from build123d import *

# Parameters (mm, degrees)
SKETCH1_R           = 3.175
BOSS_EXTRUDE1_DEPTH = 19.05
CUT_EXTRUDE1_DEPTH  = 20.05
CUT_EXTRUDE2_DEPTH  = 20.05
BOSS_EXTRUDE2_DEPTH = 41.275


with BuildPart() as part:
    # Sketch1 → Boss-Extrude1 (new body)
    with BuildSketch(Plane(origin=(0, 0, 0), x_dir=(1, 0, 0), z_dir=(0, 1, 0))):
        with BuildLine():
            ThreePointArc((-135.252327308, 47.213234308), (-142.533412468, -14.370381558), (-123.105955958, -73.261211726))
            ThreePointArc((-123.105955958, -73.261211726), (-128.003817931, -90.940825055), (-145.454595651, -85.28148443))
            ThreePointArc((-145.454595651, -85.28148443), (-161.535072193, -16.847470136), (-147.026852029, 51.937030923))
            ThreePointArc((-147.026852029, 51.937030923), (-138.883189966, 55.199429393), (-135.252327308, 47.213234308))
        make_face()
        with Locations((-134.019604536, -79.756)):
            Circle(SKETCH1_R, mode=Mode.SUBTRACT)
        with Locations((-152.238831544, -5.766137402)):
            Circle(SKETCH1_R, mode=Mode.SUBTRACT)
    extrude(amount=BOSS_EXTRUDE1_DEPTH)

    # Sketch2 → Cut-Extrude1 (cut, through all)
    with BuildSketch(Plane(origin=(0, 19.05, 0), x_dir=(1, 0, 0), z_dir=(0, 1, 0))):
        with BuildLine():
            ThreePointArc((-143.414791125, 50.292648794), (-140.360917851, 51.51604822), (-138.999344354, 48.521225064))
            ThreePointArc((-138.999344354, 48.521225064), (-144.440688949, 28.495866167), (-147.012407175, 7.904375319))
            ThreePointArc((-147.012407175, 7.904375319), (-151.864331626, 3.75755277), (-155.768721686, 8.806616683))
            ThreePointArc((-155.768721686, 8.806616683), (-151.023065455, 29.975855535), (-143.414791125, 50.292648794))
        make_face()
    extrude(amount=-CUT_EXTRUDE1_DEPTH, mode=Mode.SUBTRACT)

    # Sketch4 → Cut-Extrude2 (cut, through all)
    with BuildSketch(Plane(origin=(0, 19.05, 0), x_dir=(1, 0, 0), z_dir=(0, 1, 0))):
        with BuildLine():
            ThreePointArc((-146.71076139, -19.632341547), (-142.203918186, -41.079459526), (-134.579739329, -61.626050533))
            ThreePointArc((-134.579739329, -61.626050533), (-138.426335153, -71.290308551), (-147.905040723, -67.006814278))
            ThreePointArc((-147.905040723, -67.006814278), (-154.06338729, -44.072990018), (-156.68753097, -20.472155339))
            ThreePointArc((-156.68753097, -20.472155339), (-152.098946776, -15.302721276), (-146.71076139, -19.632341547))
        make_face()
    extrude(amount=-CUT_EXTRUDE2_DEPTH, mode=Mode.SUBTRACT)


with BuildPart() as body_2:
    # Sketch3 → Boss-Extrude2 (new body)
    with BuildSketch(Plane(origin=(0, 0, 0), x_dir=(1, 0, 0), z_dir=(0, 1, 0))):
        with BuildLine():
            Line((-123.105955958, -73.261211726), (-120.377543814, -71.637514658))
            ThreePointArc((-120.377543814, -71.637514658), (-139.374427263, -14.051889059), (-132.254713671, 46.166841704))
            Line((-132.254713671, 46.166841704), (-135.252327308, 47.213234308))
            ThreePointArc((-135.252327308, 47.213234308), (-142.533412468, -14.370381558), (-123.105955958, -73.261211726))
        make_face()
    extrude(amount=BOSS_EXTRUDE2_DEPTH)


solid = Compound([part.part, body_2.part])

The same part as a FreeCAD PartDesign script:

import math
import FreeCAD as App
import Part
import Sketcher

V = App.Vector
Q = App.Units.Quantity

doc = App.newDocument("Part")
body = doc.addObject("PartDesign::Body", "Body")

sketch1 = body.newObject("Sketcher::SketchObject", "Sketch")
sketch1.AttachmentSupport = (doc.getObject("XZ_Plane"), [""])
sketch1.MapMode = "FlatFace"
sketch1.addGeometry([
    Part.ArcOfCircle(Part.Circle(V(0, 0, 0), V(0, 0, 1), 143.256), math.radians(149.242828), math.radians(199.242828)),
    Part.ArcOfCircle(Part.Circle(V(-141.247555, -49.30602, 0), V(0, 0, 1), 6.35), math.radians(-155.522712), math.radians(19.242828)),
    Part.ArcOfCircle(Part.Circle(V(0, 14.996593, 0), V(0, 0, 1), 161.545676), math.radians(154.209774), math.radians(204.477288)),
    Part.ArcOfCircle(Part.Circle(V(-134.019605, 79.756, 0), V(0, 0, 1), 12.7), math.radians(-30.757172), math.radians(154.209774)),
    Part.Circle(V(-134.019605, 79.756, 0), V(0, 0, 1), 3.175),
    Part.Circle(V(-152.238832, 5.766137, 0), V(0, 0, 1), 3.175),
], False)
sketch1.addConstraint([
    Sketcher.Constraint("Tangent", 0, 2, 1, 2),
    Sketcher.Constraint("Tangent", 1, 1, 2, 2),
    Sketcher.Constraint("Tangent", 2, 1, 3, 2),
    Sketcher.Constraint("Tangent", 3, 1, 0, 1),
    Sketcher.Constraint("Coincident", 0, 3, -1, 1),
    Sketcher.Constraint("Coincident", 4, 3, 3, 3),
    Sketcher.Constraint("Equal", 4, 5),
    Sketcher.Constraint("PointOnObject", 2, 3, -2),
    Sketcher.Constraint("Radius", 3, Q("0.5 in")),
    Sketcher.Constraint("Diameter", 4, Q("0.25 in")),
    Sketcher.Constraint("Radius", 0, Q("5.64 in")),
    Sketcher.Constraint("Radius", 1, Q("0.25 in")),
    Sketcher.Constraint("DistanceY", -1, 1, 3, 3, Q("3.14 in")),
    Sketcher.Constraint("Radius", 2, Q("161.545676 mm")),
    Sketcher.Constraint("DistanceX", 5, 3, -1, 1, Q("152.238832 mm")),
    Sketcher.Constraint("DistanceY", 0, 2, 5, 3, Q("52.979372 mm")),
])
pad1 = body.newObject("PartDesign::Pad", "Pad")
pad1.Profile = sketch1
pad1.Length = Q("0.75 in")
pad1.Reversed = True

sketch2 = body.newObject("Sketcher::SketchObject", "Sketch001")
sketch2.AttachmentSupport = (doc.getObject("XZ_Plane"), [""])
sketch2.MapMode = "FlatFace"
sketch2.AttachmentOffset = App.Placement(V(0, 0, -0.75 * 25.4), App.Rotation())
sketch2.addGeometry([
    Part.ArcOfCircle(Part.Circle(V(-141.247555, -49.30602, 0), V(0, 0, 1), 2.38125), math.radians(-155.522712), math.radians(19.242828)),
    Part.ArcOfCircle(Part.Circle(V(0, 14.996593, 0), V(0, 0, 1), 157.576926), math.radians(-171.311772), math.radians(-155.522712)),
    Part.ArcOfCircle(Part.Circle(V(-151.41267, -8.140963, 0), V(0, 0, 1), 4.406618), math.radians(3.077643), math.radians(188.688228)),
    Part.ArcOfCircle(Part.Circle(V(0, 0, 0), V(0, 0, 1), 147.22475), math.radians(-176.922357), math.radians(-160.757172)),
], False)
sketch2.addConstraint([
    Sketcher.Constraint("Tangent", 0, 1, 1, 2),
    Sketcher.Constraint("Tangent", 1, 1, 2, 2),
    Sketcher.Constraint("Tangent", 2, 1, 3, 1),
    Sketcher.Constraint("Tangent", 3, 2, 0, 2),
    Sketcher.Constraint("Coincident", 3, 3, -1, 1),
    Sketcher.Constraint("PointOnObject", 1, 3, -2),
    Sketcher.Constraint("Radius", 0, Q("0.09375 in")),
    Sketcher.Constraint("Radius", 2, Q("4.406618 mm")),
    Sketcher.Constraint("Radius", 3, Q("147.22475 mm")),
    Sketcher.Constraint("Radius", 1, Q("157.576926 mm")),
    Sketcher.Constraint("DistanceY", 0, 3, -1, 1, Q("49.30602 mm")),
])
pocket1 = body.newObject("PartDesign::Pocket", "Pocket")
pocket1.Profile = sketch2
pocket1.Type = "ThroughAll"
pocket1.Reversed = True

sketch3 = body.newObject("Sketcher::SketchObject", "Sketch002")
sketch3.AttachmentSupport = (doc.getObject("XZ_Plane"), [""])
sketch3.MapMode = "FlatFace"
sketch3.AttachmentOffset = App.Placement(V(0, 0, -0.75 * 25.4), App.Rotation())
sketch3.addGeometry([
    Part.ArcOfCircle(Part.Circle(V(0, 0, 0), V(0, 0, 1), 148.0185), math.radians(155.396257), math.radians(172.37815)),
    Part.ArcOfCircle(Part.Circle(V(-151.678534, 20.297112, 0), V(0, 0, 1), 5.012054), math.radians(177.998571), math.radians(352.37815)),
    Part.ArcOfCircle(Part.Circle(V(0, 14.996593, 0), V(0, 0, 1), 156.783176), math.radians(160.625978), math.radians(177.998571)),
    Part.ArcOfCircle(Part.Circle(V(-141.119521, 64.620713, 0), V(0, 0, 1), 7.192826), math.radians(-24.603743), math.radians(160.625978)),
], False)
sketch3.addConstraint([
    Sketcher.Constraint("Tangent", 0, 2, 1, 2),
    Sketcher.Constraint("Tangent", 1, 1, 2, 2),
    Sketcher.Constraint("Tangent", 2, 1, 3, 2),
    Sketcher.Constraint("Tangent", 3, 1, 0, 1),
    Sketcher.Constraint("Coincident", 0, 3, -1, 1),
    Sketcher.Constraint("PointOnObject", 2, 3, -2),
    Sketcher.Constraint("Radius", 0, Q("5.8275 in")),
    Sketcher.Constraint("Radius", 1, Q("5.012054 mm")),
    Sketcher.Constraint("Radius", 2, Q("156.783176 mm")),
    Sketcher.Constraint("Radius", 3, Q("7.192826 mm")),
    Sketcher.Constraint("DistanceY", 3, 1, 3, 3, Q("0.1179001 in")),
])
pocket2 = body.newObject("PartDesign::Pocket", "Pocket001")
pocket2.Profile = sketch3
pocket2.Type = "ThroughAll"
pocket2.Reversed = True
body2 = doc.addObject("PartDesign::Body", "Body001")

sketch4 = body2.newObject("Sketcher::SketchObject", "Sketch003")
sketch4.AttachmentSupport = (doc.getObject("XZ_Plane001"), [""])
sketch4.MapMode = "FlatFace"
sketch4.addGeometry([
    Part.LineSegment(V(-123.105956, 73.261212, 0), V(-120.377544, 71.637515, 0)),
    Part.ArcOfCircle(Part.Circle(V(0, 0, 0), V(0, 0, 1), 140.081), math.radians(149.242828), math.radians(199.242828)),
    Part.LineSegment(V(-132.254714, -46.166842, 0), V(-135.252327, -47.213234, 0)),
    Part.ArcOfCircle(Part.Circle(V(0, 0, 0), V(0, 0, 1), 143.256), math.radians(149.242828), math.radians(199.242828)),
], False)
sketch4.addConstraint([
    Sketcher.Constraint("Coincident", 0, 2, 1, 1),
    Sketcher.Constraint("Coincident", 1, 2, 2, 1),
    Sketcher.Constraint("Coincident", 2, 2, 3, 2),
    Sketcher.Constraint("Coincident", 3, 1, 0, 1),
    Sketcher.Constraint("Coincident", 1, 3, -1, 1),
    Sketcher.Constraint("Coincident", 3, 3, -1, 1),
    Sketcher.Constraint("Radius", 3, Q("5.64 in")),
    Sketcher.Constraint("Radius", 1, Q("5.515 in")),
    Sketcher.Constraint("DistanceY", 1, 2, -1, 1, Q("46.166842 mm")),
    Sketcher.Constraint("DistanceY", -1, 1, 3, 1, Q("73.261212 mm")),
    Sketcher.Constraint("DistanceX", 1, 2, 0, 2, Q("11.87717 mm")),
    Sketcher.Constraint("DistanceY", 2, 2, 0, 2, Q("118.850749 mm")),
])
pad2 = body2.newObject("PartDesign::Pad", "Pad001")
pad2.Profile = sketch4
pad2.Length = Q("1.625 in")
pad2.Reversed = True

doc.recompute()
